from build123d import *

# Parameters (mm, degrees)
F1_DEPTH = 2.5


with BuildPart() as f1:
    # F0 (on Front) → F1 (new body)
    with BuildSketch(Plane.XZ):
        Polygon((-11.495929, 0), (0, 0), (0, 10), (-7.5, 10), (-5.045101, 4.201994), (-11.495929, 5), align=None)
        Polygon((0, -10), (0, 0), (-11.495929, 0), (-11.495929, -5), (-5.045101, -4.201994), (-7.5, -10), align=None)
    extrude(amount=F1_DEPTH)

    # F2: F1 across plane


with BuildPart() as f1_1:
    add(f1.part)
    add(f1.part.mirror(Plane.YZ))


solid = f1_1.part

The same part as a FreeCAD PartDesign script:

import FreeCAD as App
import Part
import Sketcher

V = App.Vector

doc = App.newDocument("Part")
body = doc.addObject("PartDesign::Body", "Body")

# Sketch on XZ plane
sketch1 = body.newObject("Sketcher::SketchObject", "Sketch")
sketch1.AttachmentSupport = (doc.getObject("XZ_Plane"), [""])
sketch1.MapMode = "FlatFace"
sketch1.addGeometry(Part.LineSegment(V(0, 10, 0), V(-8, 10, 0)), False)
sketch1.addGeometry(Part.LineSegment(V(-8, 10, 0), V(-5, 4, 0)), False)
sketch1.addGeometry(Part.LineSegment(V(-5, 4, 0), V(-11, 5, 0)), False)
sketch1.addGeometry(Part.LineSegment(V(-11, 5, 0), V(-11, -5, 0)), False)
sketch1.addGeometry(Part.LineSegment(V(-11, -5, 0), V(-5, -4, 0)), False)
sketch1.addGeometry(Part.LineSegment(V(-5, -4, 0), V(-8, -10, 0)), False)
sketch1.addGeometry(Part.LineSegment(V(-8, -10, 0), V(0, -10, 0)), False)
sketch1.addGeometry(Part.LineSegment(V(0, -10, 0), V(0, 10, 0)), False)
sketch1.addConstraint(Sketcher.Constraint("Coincident", 0, 2, 1, 1))
sketch1.addConstraint(Sketcher.Constraint("Coincident", 1, 2, 2, 1))
sketch1.addConstraint(Sketcher.Constraint("Coincident", 2, 2, 3, 1))
sketch1.addConstraint(Sketcher.Constraint("Coincident", 3, 2, 4, 1))
sketch1.addConstraint(Sketcher.Constraint("Coincident", 4, 2, 5, 1))
sketch1.addConstraint(Sketcher.Constraint("Coincident", 5, 2, 6, 1))
sketch1.addConstraint(Sketcher.Constraint("Coincident", 6, 2, 7, 1))
sketch1.addConstraint(Sketcher.Constraint("Coincident", 7, 2, 0, 1))
sketch1.addConstraint(Sketcher.Constraint("Horizontal", 0))
sketch1.addConstraint(Sketcher.Constraint("Vertical", 3))
sketch1.addConstraint(Sketcher.Constraint("Horizontal", 6))
sketch1.addConstraint(Sketcher.Constraint("Vertical", 7))
sketch1.addConstraint(Sketcher.Constraint("Symmetric", 6, 2, 7, 2, -1, 1))
sketch1.addConstraint(Sketcher.Constraint("Symmetric", 1, 2, 4, 2, -1))
sketch1.addConstraint(Sketcher.Constraint("Vertical", 0, 2, 5, 2))
sketch1.addConstraint(Sketcher.Constraint("Equal", 2, 4))
sketch1.addConstraint(Sketcher.Constraint("DistanceY", 3, 2, 3, 1, 10.0))
sketch1.addConstraint(Sketcher.Constraint("DistanceY", 7, 1, 7, 2, 20.0))
sketch1.addConstraint(Sketcher.Constraint("DistanceX", 0, 2, 0, 1, 7.5))
sketch1.addConstraint(Sketcher.Constraint("Distance", 2, 6.5))
sketch1.addConstraint(Sketcher.Constraint("Distance", 1, 6.296301))
sketch1.addConstraint(Sketcher.Constraint("DistanceX", 1, 2, -1, 1, 5.045101))
pad1 = body.newObject("PartDesign::Pad", "Pad")
pad1.Profile = sketch1
pad1.Length = 2.5
body2 = doc.addObject("PartDesign::Body", "Body001")
doc.recompute()

body2.BaseFeature = body
doc.recompute()

mirroring = doc.addObject("Part::Mirroring", "Mirroring")
mirroring.Source = body
mirroring.Base = V(0, 0, 0)
mirroring.Normal = V(1, 0, 0)
body3 = doc.addObject("PartDesign::Body", "Body002")
body3.BaseFeature = mirroring
boolean = body2.newObject("PartDesign::Boolean", "Boolean")
boolean.Type = "Fuse"
boolean.addObjects([body3])
doc.recompute()
mirroring.Visibility = False

doc.recompute()
